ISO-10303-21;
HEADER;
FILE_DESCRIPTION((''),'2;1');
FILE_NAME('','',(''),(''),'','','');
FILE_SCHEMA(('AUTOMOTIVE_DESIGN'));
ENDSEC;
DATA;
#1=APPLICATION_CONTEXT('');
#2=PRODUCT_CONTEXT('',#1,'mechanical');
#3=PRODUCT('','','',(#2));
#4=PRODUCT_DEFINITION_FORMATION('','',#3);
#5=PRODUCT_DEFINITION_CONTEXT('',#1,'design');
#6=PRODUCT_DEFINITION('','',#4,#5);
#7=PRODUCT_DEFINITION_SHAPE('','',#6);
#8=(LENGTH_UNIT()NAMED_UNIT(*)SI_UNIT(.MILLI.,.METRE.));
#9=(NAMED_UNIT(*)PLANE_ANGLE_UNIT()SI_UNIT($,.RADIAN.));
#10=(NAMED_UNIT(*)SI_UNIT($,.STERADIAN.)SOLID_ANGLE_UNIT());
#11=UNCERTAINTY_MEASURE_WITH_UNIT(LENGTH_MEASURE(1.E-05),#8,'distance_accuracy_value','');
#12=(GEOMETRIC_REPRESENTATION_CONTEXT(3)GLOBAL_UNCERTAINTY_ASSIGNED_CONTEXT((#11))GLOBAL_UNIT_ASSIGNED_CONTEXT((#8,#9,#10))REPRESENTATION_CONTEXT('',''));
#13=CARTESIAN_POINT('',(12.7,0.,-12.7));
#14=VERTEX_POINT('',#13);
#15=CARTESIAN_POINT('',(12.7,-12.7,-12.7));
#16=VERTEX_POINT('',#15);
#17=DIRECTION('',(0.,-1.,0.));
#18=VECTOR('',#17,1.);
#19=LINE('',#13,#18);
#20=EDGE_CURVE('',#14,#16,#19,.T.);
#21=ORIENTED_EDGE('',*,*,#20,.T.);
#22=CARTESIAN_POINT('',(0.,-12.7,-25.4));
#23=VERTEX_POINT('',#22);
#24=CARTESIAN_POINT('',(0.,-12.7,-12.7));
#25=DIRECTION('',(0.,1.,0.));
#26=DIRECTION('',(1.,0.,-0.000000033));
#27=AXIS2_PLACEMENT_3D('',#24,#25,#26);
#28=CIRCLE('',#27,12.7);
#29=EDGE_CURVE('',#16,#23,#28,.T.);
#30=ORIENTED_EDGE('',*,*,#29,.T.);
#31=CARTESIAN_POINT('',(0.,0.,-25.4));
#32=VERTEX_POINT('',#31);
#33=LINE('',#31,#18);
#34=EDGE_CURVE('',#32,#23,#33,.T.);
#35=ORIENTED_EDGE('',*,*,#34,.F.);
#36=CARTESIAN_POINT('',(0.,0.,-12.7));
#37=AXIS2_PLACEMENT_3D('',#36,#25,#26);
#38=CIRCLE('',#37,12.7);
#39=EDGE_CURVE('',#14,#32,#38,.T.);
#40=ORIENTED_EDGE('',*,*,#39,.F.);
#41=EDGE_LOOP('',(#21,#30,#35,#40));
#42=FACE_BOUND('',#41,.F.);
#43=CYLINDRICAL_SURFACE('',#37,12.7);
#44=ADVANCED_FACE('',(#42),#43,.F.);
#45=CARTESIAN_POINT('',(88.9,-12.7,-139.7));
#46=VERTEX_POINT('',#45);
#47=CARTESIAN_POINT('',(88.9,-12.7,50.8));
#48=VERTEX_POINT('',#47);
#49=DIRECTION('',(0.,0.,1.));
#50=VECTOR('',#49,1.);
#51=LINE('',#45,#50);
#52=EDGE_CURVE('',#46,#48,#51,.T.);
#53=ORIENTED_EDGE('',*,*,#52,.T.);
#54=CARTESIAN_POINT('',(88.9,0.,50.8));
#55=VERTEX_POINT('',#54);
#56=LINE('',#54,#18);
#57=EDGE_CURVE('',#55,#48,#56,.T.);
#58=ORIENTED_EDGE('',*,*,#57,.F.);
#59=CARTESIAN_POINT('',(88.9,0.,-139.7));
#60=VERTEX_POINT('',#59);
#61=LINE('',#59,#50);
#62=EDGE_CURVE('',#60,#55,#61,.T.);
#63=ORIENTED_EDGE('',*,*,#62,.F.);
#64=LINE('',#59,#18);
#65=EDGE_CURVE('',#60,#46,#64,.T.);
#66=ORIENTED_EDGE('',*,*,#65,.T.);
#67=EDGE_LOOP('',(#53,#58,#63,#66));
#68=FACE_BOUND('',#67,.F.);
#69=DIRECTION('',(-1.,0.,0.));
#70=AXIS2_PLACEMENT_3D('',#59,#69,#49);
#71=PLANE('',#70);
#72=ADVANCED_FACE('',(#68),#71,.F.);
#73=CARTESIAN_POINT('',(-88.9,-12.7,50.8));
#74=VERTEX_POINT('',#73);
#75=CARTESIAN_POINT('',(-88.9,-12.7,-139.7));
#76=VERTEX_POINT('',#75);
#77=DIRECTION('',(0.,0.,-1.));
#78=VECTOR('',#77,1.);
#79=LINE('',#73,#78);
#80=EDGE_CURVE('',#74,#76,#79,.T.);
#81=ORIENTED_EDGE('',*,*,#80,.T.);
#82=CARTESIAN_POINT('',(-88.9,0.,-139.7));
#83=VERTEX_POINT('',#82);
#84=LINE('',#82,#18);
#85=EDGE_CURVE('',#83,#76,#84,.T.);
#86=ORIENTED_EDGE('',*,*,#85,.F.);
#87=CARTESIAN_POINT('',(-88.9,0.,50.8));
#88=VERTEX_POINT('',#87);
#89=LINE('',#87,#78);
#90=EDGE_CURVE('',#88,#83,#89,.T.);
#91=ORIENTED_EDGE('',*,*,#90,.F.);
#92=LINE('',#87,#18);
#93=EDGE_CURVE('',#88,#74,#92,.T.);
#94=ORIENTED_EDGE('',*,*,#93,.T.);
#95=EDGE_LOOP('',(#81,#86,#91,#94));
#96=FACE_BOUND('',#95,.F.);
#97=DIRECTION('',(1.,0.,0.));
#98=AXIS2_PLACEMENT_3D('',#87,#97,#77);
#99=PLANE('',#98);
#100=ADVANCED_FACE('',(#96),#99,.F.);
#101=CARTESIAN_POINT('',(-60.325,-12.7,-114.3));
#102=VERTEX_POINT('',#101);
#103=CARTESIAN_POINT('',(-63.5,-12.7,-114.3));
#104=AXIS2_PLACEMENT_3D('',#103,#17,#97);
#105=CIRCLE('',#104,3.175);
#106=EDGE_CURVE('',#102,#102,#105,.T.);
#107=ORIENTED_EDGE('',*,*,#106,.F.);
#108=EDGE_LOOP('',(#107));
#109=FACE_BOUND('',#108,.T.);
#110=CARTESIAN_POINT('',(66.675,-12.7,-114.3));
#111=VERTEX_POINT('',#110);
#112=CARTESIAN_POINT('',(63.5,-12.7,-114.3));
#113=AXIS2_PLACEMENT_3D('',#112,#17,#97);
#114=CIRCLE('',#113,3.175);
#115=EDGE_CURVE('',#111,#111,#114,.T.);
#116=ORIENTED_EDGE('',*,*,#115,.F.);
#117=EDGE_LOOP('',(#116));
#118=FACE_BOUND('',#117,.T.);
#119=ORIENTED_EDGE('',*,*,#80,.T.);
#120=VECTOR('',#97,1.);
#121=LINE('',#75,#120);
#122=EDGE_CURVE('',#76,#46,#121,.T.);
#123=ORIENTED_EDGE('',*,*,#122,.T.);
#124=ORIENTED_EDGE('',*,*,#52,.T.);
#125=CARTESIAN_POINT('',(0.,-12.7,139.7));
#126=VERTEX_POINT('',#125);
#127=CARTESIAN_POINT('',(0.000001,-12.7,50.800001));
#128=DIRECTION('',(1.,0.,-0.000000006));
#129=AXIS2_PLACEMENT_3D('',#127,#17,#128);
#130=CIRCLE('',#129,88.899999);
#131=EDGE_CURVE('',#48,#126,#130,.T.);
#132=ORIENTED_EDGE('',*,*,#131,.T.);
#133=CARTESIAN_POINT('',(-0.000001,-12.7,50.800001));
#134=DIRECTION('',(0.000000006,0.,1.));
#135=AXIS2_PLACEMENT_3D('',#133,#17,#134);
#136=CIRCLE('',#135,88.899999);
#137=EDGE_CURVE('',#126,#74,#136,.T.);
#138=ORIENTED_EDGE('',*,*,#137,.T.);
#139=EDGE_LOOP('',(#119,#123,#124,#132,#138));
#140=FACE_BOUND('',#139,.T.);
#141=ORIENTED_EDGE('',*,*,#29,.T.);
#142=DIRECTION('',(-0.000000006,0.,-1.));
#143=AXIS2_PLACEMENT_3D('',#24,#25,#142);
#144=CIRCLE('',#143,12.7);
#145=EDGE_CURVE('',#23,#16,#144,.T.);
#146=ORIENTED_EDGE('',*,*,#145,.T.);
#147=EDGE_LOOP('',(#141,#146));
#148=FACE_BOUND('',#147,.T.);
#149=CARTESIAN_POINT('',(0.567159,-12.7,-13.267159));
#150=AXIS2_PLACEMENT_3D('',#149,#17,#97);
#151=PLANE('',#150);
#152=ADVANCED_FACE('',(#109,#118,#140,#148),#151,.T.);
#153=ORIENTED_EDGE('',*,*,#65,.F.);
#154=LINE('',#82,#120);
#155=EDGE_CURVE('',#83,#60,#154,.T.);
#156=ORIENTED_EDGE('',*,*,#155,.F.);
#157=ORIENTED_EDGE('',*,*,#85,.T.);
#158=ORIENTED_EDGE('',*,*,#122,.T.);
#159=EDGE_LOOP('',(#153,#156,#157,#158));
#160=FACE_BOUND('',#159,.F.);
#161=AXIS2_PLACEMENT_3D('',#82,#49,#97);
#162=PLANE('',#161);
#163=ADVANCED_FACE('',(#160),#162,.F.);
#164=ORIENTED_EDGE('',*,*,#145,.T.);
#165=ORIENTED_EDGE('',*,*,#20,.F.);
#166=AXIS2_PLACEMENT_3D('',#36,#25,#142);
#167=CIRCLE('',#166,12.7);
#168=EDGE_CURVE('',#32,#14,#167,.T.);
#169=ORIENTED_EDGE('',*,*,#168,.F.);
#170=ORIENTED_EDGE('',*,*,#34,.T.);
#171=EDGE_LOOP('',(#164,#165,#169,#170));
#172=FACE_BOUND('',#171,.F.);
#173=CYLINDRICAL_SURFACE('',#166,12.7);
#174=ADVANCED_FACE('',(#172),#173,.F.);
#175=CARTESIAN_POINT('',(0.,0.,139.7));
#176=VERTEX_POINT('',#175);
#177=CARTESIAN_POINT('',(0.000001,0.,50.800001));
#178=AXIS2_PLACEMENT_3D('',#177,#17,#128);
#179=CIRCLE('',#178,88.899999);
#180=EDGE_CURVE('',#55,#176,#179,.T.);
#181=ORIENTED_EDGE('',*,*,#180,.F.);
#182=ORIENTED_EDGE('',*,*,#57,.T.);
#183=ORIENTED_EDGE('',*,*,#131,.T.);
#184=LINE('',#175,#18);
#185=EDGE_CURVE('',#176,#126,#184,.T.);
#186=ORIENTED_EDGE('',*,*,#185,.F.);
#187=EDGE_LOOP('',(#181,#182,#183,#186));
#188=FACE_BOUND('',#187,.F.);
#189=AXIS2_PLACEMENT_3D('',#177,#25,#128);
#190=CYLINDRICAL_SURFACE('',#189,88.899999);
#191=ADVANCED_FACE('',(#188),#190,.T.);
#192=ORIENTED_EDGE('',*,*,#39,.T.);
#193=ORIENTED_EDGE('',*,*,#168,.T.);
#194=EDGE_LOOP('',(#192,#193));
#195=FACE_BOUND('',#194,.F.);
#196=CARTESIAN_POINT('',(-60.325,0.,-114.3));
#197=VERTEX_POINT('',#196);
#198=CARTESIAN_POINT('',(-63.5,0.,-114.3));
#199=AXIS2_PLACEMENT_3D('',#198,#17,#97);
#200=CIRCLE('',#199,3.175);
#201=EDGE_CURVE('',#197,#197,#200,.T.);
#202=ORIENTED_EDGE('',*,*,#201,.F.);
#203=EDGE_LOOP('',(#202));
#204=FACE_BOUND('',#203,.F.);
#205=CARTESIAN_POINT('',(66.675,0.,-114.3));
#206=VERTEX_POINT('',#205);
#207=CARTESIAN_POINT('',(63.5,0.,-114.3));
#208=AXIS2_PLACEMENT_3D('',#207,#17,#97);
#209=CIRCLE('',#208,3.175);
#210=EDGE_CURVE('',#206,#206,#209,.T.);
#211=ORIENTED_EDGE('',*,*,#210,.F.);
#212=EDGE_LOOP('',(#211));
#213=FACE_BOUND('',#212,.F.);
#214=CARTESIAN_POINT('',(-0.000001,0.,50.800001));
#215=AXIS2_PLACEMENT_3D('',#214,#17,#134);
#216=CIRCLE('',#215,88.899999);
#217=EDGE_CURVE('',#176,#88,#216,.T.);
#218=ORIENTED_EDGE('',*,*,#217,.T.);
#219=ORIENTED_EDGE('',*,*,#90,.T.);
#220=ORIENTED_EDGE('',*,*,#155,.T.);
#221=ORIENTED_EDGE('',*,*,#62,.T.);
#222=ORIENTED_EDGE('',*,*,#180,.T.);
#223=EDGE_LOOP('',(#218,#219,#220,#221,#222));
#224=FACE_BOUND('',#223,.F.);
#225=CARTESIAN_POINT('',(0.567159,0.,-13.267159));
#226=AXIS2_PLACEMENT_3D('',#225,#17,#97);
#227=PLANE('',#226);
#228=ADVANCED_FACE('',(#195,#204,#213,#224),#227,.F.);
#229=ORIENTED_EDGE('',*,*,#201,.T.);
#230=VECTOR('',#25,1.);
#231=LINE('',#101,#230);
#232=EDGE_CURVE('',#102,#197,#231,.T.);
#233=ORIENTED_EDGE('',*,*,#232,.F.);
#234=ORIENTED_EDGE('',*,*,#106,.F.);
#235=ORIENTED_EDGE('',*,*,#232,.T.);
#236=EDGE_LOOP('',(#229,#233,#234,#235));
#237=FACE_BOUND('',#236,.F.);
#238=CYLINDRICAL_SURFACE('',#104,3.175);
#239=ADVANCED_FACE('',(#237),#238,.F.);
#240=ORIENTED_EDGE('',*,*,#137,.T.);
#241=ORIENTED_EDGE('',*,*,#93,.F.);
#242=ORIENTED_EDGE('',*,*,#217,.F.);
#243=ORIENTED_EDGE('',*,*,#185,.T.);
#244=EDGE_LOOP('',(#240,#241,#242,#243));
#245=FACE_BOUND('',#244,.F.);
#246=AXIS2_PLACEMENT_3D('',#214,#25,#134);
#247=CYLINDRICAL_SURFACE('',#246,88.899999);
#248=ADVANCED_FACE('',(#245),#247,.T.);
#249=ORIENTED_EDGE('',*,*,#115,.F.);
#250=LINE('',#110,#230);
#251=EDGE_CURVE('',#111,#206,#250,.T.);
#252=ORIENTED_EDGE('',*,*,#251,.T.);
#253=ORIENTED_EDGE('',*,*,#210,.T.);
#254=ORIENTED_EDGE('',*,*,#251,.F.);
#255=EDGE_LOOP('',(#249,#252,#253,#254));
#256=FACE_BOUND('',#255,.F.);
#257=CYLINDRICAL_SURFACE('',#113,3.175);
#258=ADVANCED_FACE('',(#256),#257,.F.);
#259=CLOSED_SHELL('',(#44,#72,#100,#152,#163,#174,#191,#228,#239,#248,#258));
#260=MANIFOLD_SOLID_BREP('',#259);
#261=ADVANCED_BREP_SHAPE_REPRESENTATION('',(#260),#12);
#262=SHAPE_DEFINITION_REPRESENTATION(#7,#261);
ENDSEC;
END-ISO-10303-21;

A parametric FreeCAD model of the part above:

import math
import FreeCAD as App
import Part
import Sketcher
Q = App.Units.Quantity

doc = App.newDocument("Part")
body = doc.addObject("PartDesign::Body", "Body")

# Sketch on XZ plane
sketch1 = body.newObject("Sketcher::SketchObject", "Sketch")
sketch1.AttachmentSupport = (doc.getObject("XZ_Plane"), [""])
sketch1.MapMode = "FlatFace"
sketch1.addGeometry([
    Part.LineSegment(App.Vector(88.9, -139.7, 0), App.Vector(88.9, 50.8, 0)),  # 0
    Part.ArcOfCircle(Part.Circle(App.Vector(0.000001, 50.800001, 0), App.Vector(0, 0, 1), 88.899999), math.radians(0), math.radians(90)),  # 1
    Part.ArcOfCircle(Part.Circle(App.Vector(-0.000001, 50.800001, 0), App.Vector(0, 0, 1), 88.899999), math.radians(90), math.radians(180)),  # 2
    Part.LineSegment(App.Vector(-88.9, 50.8, 0), App.Vector(-88.9, -139.7, 0)),  # 3
    Part.LineSegment(App.Vector(-88.9, -139.7, 0), App.Vector(88.9, -139.7, 0)),  # 4
    Part.ArcOfCircle(Part.Circle(App.Vector(0, -12.7, 0), App.Vector(0, 0, 1), 12.7), math.radians(0), math.radians(270)),  # 5
    Part.ArcOfCircle(Part.Circle(App.Vector(0, -12.7, 0), App.Vector(0, 0, 1), 12.7), math.radians(-89.999998), math.radians(-0.000002)),  # 6
], False)
sketch1.addConstraint([
    Sketcher.Constraint("Tangent", 0, 2, 1, 1),
    Sketcher.Constraint("Tangent", 1, 2, 2, 1),
    Sketcher.Constraint("Tangent", 2, 2, 3, 1),
    Sketcher.Constraint("Coincident", 3, 2, 4, 1),
    Sketcher.Constraint("Coincident", 4, 2, 0, 1),
    Sketcher.Constraint("Tangent", 5, 1, 6, 2),
    Sketcher.Constraint("Coincident", 6, 1, 5, 2),
    Sketcher.Constraint("Vertical", 0),
    Sketcher.Constraint("Vertical", 3),
    Sketcher.Constraint("Horizontal", 4),
    Sketcher.Constraint("Equal", 1, 2),
    Sketcher.Constraint("PointOnObject", 1, 3, -2),
    Sketcher.Constraint("PointOnObject", 5, 3, -2),
    Sketcher.Constraint("PointOnObject", 1, 2, -2),
    Sketcher.Constraint("PointOnObject", 6, 1, -2),
    Sketcher.Constraint("Horizontal", 6, 3, 5, 1),
    Sketcher.Constraint("Radius", 1, Q("3.5 in")),
    Sketcher.Constraint("Radius", 5, Q("0.5 in")),
    Sketcher.Constraint("DistanceY", 0, 1, 0, 2, Q("7.5 in")),
    Sketcher.Constraint("DistanceY", -1, 1, 1, 3, Q("2 in")),
    Sketcher.Constraint("DistanceY", 6, 1, -1, 1, Q("1 in")),
])
pad1 = body.newObject("PartDesign::Pad", "Pad")
pad1.Profile = sketch1
pad1.Length = Q("0.5 in")

# Sketch on XZ plane
sketch2 = body.newObject("Sketcher::SketchObject", "Sketch001")
sketch2.AttachmentSupport = (doc.getObject("XZ_Plane"), [""])
sketch2.MapMode = "FlatFace"
sketch2.AttachmentOffset = App.Placement(App.Vector(0, 0, 0.5 * 25.4), App.Rotation())
sketch2.addGeometry([
    Part.Circle(App.Vector(-63.5, -114.3, 0), App.Vector(0, 0, 1), 3.175),
    Part.Circle(App.Vector(63.5, -114.3, 0), App.Vector(0, 0, 1), 3.175),
], False)
sketch2.addConstraint([
    Sketcher.Constraint("Equal", 0, 1),
    Sketcher.Constraint("Symmetric", 0, 3, 1, 3, -2),
    Sketcher.Constraint("Diameter", 0, Q("0.25 in")),
    Sketcher.Constraint("DistanceX", 0, 3, 1, 3, Q("5 in")),
    Sketcher.Constraint("DistanceY", 0, 3, -1, 1, Q("4.5 in")),
])
pocket1 = body.newObject("PartDesign::Pocket", "Pocket")
pocket1.Profile = sketch2
pocket1.Type = "ThroughAll"

doc.recompute()
